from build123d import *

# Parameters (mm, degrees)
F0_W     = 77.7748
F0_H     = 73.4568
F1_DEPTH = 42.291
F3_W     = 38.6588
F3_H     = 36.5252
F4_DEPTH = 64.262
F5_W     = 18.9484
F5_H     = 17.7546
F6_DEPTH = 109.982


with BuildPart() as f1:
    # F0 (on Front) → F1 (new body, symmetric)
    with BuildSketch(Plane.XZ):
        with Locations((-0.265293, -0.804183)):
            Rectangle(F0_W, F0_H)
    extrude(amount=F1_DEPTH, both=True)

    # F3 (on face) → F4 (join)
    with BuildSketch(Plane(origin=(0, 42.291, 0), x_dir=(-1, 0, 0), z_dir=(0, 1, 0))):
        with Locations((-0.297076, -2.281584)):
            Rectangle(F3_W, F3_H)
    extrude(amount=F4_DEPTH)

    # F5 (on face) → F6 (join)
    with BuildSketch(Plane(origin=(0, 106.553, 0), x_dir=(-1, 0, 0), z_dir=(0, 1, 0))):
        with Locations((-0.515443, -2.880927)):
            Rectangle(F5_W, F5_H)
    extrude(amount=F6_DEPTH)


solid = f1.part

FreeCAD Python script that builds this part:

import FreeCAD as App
import Part
import Sketcher
from FreeCAD import Vector
Q = App.Units.Quantity


def add_polygon(sketch, points):
    """Adds a closed chain of lines whose ends are joined by coincident constraints."""
    first, n = sketch.GeometryCount, len(points)
    for a, b in zip(points, points[1:] + points[:1]):
        sketch.addGeometry(Part.LineSegment(App.Vector(*a, 0), App.Vector(*b, 0)), False)
    for i in range(n):
        sketch.addConstraint(Sketcher.Constraint("Coincident", first + i, 2, first + (i + 1) % n, 1))

doc = App.newDocument("Part")
params = doc.addObject("Spreadsheet::Sheet", "Params")
for row, (alias, value) in enumerate([
    ("sketch1_width", "3.062 in"),
    ("sketch1_height", "2.892 in"),
    ("pad1_length", "3.33 in"),
    ("sketch2_width", "1.522 in"),
    ("sketch2_height", "1.438 in"),
    ("pad2_length", "2.53 in"),
    ("sketch3_width", "0.746 in"),
    ("sketch3_height", "0.699 in"),
    ("pad3_length", "4.33 in"),
], start=1):
    params.set(f"A{row}", alias)
    params.set(f"B{row}", "=" + value)
    params.setAlias(f"B{row}", alias)

body = doc.addObject("PartDesign::Body", "Body")

sketch1 = doc.addObject("Sketcher::SketchObject", "Sketch")
body.addObject(sketch1)
sketch1.AttachmentSupport = (doc.XZ_Plane, [""])
sketch1.MapMode = "FlatFace"
add_polygon(sketch1, [(-39.152693, 35.924217), (-39.152693, -37.532583), (38.622107, -37.532583), (38.622107, 35.924217)])
sketch1.addConstraint([
    Sketcher.Constraint("Vertical", 0),
    Sketcher.Constraint("Horizontal", 1),
    Sketcher.Constraint("Vertical", 2),
    Sketcher.Constraint("Horizontal", 3),
    Sketcher.Constraint("DistanceX", 1, 1, 1, 2, Q("3.062 in")),
    Sketcher.Constraint("DistanceY", 0, 2, 0, 1, Q("2.892 in")),
    Sketcher.Constraint("DistanceX", 0, 2, -1, 1, Q("39.152693 mm")),
    Sketcher.Constraint("DistanceY", 0, 2, -1, 1, Q("37.532583 mm")),
])
sketch1.setExpression("Constraints[8]", "Params.sketch1_width")
sketch1.setExpression("Constraints[9]", "Params.sketch1_height")
pad1 = doc.addObject("PartDesign::Pad", "Pad")
body.addObject(pad1)
pad1.Profile = sketch1
pad1.setExpression("Length", "Params.pad1_length")
pad1.Midplane = True

sketch2 = doc.addObject("Sketcher::SketchObject", "Sketch001")
body.addObject(sketch2)
sketch2.AttachmentSupport = (doc.XZ_Plane, [""])
sketch2.MapMode = "FlatFace"
sketch2.AttachmentOffset = App.Placement(Vector(0, 0, -1.665 * 25.4), App.Rotation())
add_polygon(sketch2, [(19.626476, 15.981016), (19.626476, -20.544184), (-19.032324, -20.544184), (-19.032324, 15.981016)])
sketch2.addConstraint([
    Sketcher.Constraint("Vertical", 0),
    Sketcher.Constraint("Horizontal", 1),
    Sketcher.Constraint("Vertical", 2),
    Sketcher.Constraint("Horizontal", 3),
    Sketcher.Constraint("DistanceX", 1, 2, 1, 1, Q("1.522 in")),
    Sketcher.Constraint("DistanceY", 0, 2, 0, 1, Q("1.438 in")),
    Sketcher.Constraint("DistanceX", -1, 1, 0, 2, Q("19.626476 mm")),
    Sketcher.Constraint("DistanceY", 0, 2, -1, 1, Q("20.544184 mm")),
])
sketch2.setExpression("Constraints[8]", "Params.sketch2_width")
sketch2.setExpression("Constraints[9]", "Params.sketch2_height")
pad2 = doc.addObject("PartDesign::Pad", "Pad001")
body.addObject(pad2)
pad2.Profile = sketch2
pad2.setExpression("Length", "Params.pad2_length")
pad2.Reversed = True

sketch3 = doc.addObject("Sketcher::SketchObject", "Sketch002")
body.addObject(sketch3)
sketch3.AttachmentSupport = (doc.XZ_Plane, [""])
sketch3.MapMode = "FlatFace"
sketch3.AttachmentOffset = App.Placement(Vector(0, 0, -4.195 * 25.4), App.Rotation())
add_polygon(sketch3, [(9.989643, 5.996373), (9.989643, -11.758227), (-8.958757, -11.758227), (-8.958757, 5.996373)])
sketch3.addConstraint([
    Sketcher.Constraint("Vertical", 0),
    Sketcher.Constraint("Horizontal", 1),
    Sketcher.Constraint("Vertical", 2),
    Sketcher.Constraint("Horizontal", 3),
    Sketcher.Constraint("DistanceX", 1, 2, 1, 1, Q("0.746 in")),
    Sketcher.Constraint("DistanceY", 0, 2, 0, 1, Q("0.699 in")),
    Sketcher.Constraint("DistanceX", -1, 1, 0, 2, Q("9.989643 mm")),
    Sketcher.Constraint("DistanceY", 0, 2, -1, 1, Q("11.758227 mm")),
])
sketch3.setExpression("Constraints[8]", "Params.sketch3_width")
sketch3.setExpression("Constraints[9]", "Params.sketch3_height")
pad3 = doc.addObject("PartDesign::Pad", "Pad002")
body.addObject(pad3)
pad3.Profile = sketch3
pad3.setExpression("Length", "Params.pad3_length")
pad3.Reversed = True

doc.recompute()
